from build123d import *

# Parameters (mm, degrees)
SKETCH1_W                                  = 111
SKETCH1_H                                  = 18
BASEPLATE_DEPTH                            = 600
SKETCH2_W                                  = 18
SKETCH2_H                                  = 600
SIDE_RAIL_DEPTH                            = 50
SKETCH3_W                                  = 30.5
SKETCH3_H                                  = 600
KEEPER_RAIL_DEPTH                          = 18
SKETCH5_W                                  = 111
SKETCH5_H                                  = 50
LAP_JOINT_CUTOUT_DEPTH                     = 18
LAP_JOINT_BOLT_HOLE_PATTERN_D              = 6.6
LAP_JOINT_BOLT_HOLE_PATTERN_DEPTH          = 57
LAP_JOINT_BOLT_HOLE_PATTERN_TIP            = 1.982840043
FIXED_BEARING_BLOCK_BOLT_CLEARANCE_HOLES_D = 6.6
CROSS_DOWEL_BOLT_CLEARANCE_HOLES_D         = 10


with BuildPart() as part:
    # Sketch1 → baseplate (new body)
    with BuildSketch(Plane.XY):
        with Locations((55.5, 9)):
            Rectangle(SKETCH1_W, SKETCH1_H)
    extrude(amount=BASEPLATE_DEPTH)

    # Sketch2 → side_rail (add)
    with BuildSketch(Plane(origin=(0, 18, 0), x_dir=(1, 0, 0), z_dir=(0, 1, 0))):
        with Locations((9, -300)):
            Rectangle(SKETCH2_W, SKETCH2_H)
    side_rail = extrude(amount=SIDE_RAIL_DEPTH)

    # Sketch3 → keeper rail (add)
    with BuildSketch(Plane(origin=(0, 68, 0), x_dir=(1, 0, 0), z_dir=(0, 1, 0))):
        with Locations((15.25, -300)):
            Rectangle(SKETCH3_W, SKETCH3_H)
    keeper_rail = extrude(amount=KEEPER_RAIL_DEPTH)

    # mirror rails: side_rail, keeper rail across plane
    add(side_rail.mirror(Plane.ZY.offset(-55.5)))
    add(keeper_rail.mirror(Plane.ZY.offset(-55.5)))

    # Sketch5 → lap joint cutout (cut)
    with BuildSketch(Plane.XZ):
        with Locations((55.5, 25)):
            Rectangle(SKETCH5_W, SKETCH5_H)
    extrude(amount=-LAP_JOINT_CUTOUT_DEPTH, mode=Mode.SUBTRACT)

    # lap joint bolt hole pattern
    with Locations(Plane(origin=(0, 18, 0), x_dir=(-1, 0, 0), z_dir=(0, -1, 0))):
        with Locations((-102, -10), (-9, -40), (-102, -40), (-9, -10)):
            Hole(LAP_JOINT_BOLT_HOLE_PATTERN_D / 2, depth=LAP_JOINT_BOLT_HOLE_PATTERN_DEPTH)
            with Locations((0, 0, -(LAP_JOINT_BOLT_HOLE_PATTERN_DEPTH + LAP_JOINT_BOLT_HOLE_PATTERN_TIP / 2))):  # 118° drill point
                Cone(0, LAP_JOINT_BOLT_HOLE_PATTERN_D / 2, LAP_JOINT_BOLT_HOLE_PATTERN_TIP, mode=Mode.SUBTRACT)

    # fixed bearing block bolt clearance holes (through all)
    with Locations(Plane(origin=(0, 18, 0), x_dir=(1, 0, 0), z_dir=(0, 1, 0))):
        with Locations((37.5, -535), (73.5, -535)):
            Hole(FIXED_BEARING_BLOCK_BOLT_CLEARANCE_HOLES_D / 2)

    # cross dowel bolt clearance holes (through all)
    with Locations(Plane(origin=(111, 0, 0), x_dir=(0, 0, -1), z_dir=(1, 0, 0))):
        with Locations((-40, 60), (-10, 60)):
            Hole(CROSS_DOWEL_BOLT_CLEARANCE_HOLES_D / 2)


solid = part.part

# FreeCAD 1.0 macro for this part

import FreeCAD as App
import Part
import Sketcher

V = App.Vector
Q = App.Units.Quantity


def add_polygon(sketch, points):
    """Adds a closed chain of lines whose ends are joined by coincident constraints."""
    first, n = sketch.GeometryCount, len(points)
    for a, b in zip(points, points[1:] + points[:1]):
        sketch.addGeometry(Part.LineSegment(App.Vector(*a, 0), App.Vector(*b, 0)), False)
    for i in range(n):
        sketch.addConstraint(Sketcher.Constraint("Coincident", first + i, 2, first + (i + 1) % n, 1))

doc = App.newDocument("Part")
params = doc.addObject("Spreadsheet::Sheet", "Params")
for row, (alias, value) in enumerate([
    ("sketch1_width", "111 mm"),
    ("sketch1_height", "18 mm"),
    ("pad1_length", "600 mm"),
    ("sketch2_width", "18 mm"),
    ("sketch2_height", "600 mm"),
    ("pad2_length", "50 mm"),
    ("sketch3_height", "600 mm"),
    ("sketch3_width", "30.5 mm"),
    ("pad3_length", "18 mm"),
    ("sketch4_width", "111 mm"),
    ("sketch4_height", "50 mm"),
    ("pocket1_length", "18 mm"),
    ("sketch5_diameter", "6.6 mm"),
    ("hole_diameter", "6.6 mm"),
    ("hole_depth", "57 mm"),
    ("sketch6_diameter", "6.6 mm"),
    ("hole2_diameter", "6.6 mm"),
    ("sketch7_diameter", "10 mm"),
    ("hole3_diameter", "10 mm"),
], start=1):
    params.set(f"A{row}", alias)
    params.set(f"B{row}", "=" + value)
    params.setAlias(f"B{row}", alias)

body = doc.addObject("PartDesign::Body", "Body")

# Sketch on XY plane
sketch1 = body.newObject("Sketcher::SketchObject", "Sketch")
sketch1.AttachmentSupport = (doc.getObject("XY_Plane"), [""])
sketch1.MapMode = "FlatFace"
add_polygon(sketch1, [(0, 18), (0, 0), (111, 0), (111, 18)])  # lines 0-3
sketch1.addConstraint(Sketcher.Constraint("Vertical", 0))
sketch1.addConstraint(Sketcher.Constraint("Horizontal", 1))
sketch1.addConstraint(Sketcher.Constraint("Vertical", 2))
sketch1.addConstraint(Sketcher.Constraint("Horizontal", 3))
sketch1.addConstraint(Sketcher.Constraint("Coincident", 0, 2, -1, 1))
sketch1.addConstraint(Sketcher.Constraint("DistanceX", 1, 1, 1, 2, Q("111 mm")))
sketch1.addConstraint(Sketcher.Constraint("DistanceY", 0, 2, 0, 1, Q("18 mm")))
sketch1.setExpression("Constraints[9]", "Params.sketch1_width")
sketch1.setExpression("Constraints[10]", "Params.sketch1_height")
pad1 = body.newObject("PartDesign::Pad", "Pad")
pad1.Profile = sketch1
pad1.setExpression("Length", "Params.pad1_length")

# Sketch on XZ plane
sketch2 = body.newObject("Sketcher::SketchObject", "Sketch001")
sketch2.AttachmentSupport = (doc.getObject("XZ_Plane"), [""])
sketch2.MapMode = "FlatFace"
sketch2.AttachmentOffset = App.Placement(V(0, 0, -18), App.Rotation())
add_polygon(sketch2, [(0, 0), (0, 600), (18, 600), (18, 0)])  # lines 0-3
sketch2.addConstraint(Sketcher.Constraint("Vertical", 0))
sketch2.addConstraint(Sketcher.Constraint("Horizontal", 1))
sketch2.addConstraint(Sketcher.Constraint("Vertical", 2))
sketch2.addConstraint(Sketcher.Constraint("Horizontal", 3))
sketch2.addConstraint(Sketcher.Constraint("Coincident", 3, 2, -1, 1))
sketch2.addConstraint(Sketcher.Constraint("DistanceX", 1, 1, 1, 2, Q("18 mm")))
sketch2.addConstraint(Sketcher.Constraint("DistanceY", 0, 1, 0, 2, Q("600 mm")))
sketch2.setExpression("Constraints[9]", "Params.sketch2_width")
sketch2.setExpression("Constraints[10]", "Params.sketch2_height")
pad2 = body.newObject("PartDesign::Pad", "Pad001")
pad2.Profile = sketch2
pad2.setExpression("Length", "Params.pad2_length")
pad2.Reversed = True

# Sketch on XZ plane
sketch3 = body.newObject("Sketcher::SketchObject", "Sketch002")
sketch3.AttachmentSupport = (doc.getObject("XZ_Plane"), [""])
sketch3.MapMode = "FlatFace"
sketch3.AttachmentOffset = App.Placement(V(0, 0, -68), App.Rotation())
add_polygon(sketch3, [(0, 0), (0, 600), (30.5, 600), (30.5, 0)])  # lines 0-3
sketch3.addConstraint(Sketcher.Constraint("Vertical", 0))
sketch3.addConstraint(Sketcher.Constraint("Horizontal", 1))
sketch3.addConstraint(Sketcher.Constraint("Vertical", 2))
sketch3.addConstraint(Sketcher.Constraint("Horizontal", 3))
sketch3.addConstraint(Sketcher.Constraint("Coincident", 3, 2, -1, 1))
sketch3.addConstraint(Sketcher.Constraint("DistanceY", 0, 1, 0, 2, Q("600 mm")))
sketch3.addConstraint(Sketcher.Constraint("DistanceX", 1, 1, 1, 2, Q("30.5 mm")))
sketch3.setExpression("Constraints[9]", "Params.sketch3_height")
sketch3.setExpression("Constraints[10]", "Params.sketch3_width")
pad3 = body.newObject("PartDesign::Pad", "Pad002")
pad3.Profile = sketch3
pad3.setExpression("Length", "Params.pad3_length")
pad3.Reversed = True
doc.recompute()

datumplane = body.newObject("PartDesign::Plane", "DatumPlane")
datumplane.AttachmentSupport = (doc.getObject("YZ_Plane"), [""])
datumplane.MapMode = "FlatFace"
datumplane.AttachmentOffset = App.Placement(V(0, 0, 55.5), App.Rotation())
mirrored = body.newObject("PartDesign::Mirrored", "Mirrored")
mirrored.Originals = [pad2, pad3]
mirrored.MirrorPlane = (datumplane, [""])
body.Tip = mirrored

# Sketch on XZ plane
sketch4 = body.newObject("Sketcher::SketchObject", "Sketch003")
sketch4.AttachmentSupport = (doc.getObject("XZ_Plane"), [""])
sketch4.MapMode = "FlatFace"
add_polygon(sketch4, [(0, 50), (0, 0), (111, 0), (111, 50)])  # lines 0-3
sketch4.addConstraint(Sketcher.Constraint("Vertical", 0))
sketch4.addConstraint(Sketcher.Constraint("Horizontal", 1))
sketch4.addConstraint(Sketcher.Constraint("Vertical", 2))
sketch4.addConstraint(Sketcher.Constraint("Horizontal", 3))
sketch4.addConstraint(Sketcher.Constraint("Coincident", 0, 2, -1, 1))
sketch4.addConstraint(Sketcher.Constraint("DistanceX", 1, 1, 1, 2, Q("111 mm")))
sketch4.addConstraint(Sketcher.Constraint("DistanceY", 0, 2, 0, 1, Q("50 mm")))
sketch4.setExpression("Constraints[9]", "Params.sketch4_width")
sketch4.setExpression("Constraints[10]", "Params.sketch4_height")
pocket1 = body.newObject("PartDesign::Pocket", "Pocket")
pocket1.Profile = sketch4
pocket1.setExpression("Length", "Params.pocket1_length")

# Sketch on XZ plane
sketch5 = body.newObject("Sketcher::SketchObject", "Sketch004")
sketch5.AttachmentSupport = (doc.getObject("XZ_Plane"), [""])
sketch5.MapMode = "FlatFace"
sketch5.AttachmentOffset = App.Placement(V(0, 0, -18), App.Rotation())
sketch5.addGeometry(Part.Circle(V(102, 10, 0), V(0, 0, 1), 3.3), False)
sketch5.addGeometry(Part.Circle(V(9, 40, 0), V(0, 0, 1), 3.3), False)
sketch5.addGeometry(Part.Circle(V(102, 40, 0), V(0, 0, 1), 3.3), False)
sketch5.addGeometry(Part.Circle(V(9, 10, 0), V(0, 0, 1), 3.3), False)
sketch5.addConstraint(Sketcher.Constraint("Equal", 0, 1))
sketch5.addConstraint(Sketcher.Constraint("Equal", 1, 2))
sketch5.addConstraint(Sketcher.Constraint("Equal", 2, 3))
sketch5.addConstraint(Sketcher.Constraint("Horizontal", 1, 3, 2, 3))
sketch5.addConstraint(Sketcher.Constraint("Horizontal", 0, 3, 3, 3))
sketch5.addConstraint(Sketcher.Constraint("Vertical", 0, 3, 2, 3))
sketch5.addConstraint(Sketcher.Constraint("Vertical", 1, 3, 3, 3))
sketch5.addConstraint(Sketcher.Constraint("Diameter", 0, Q("6.6 mm")))
sketch5.addConstraint(Sketcher.Constraint("DistanceX", -1, 1, 0, 3, Q("102 mm")))
sketch5.addConstraint(Sketcher.Constraint("DistanceY", -1, 1, 0, 3, Q("10 mm")))
sketch5.addConstraint(Sketcher.Constraint("DistanceX", -1, 1, 1, 3, Q("9 mm")))
sketch5.addConstraint(Sketcher.Constraint("DistanceY", -1, 1, 1, 3, Q("40 mm")))
sketch5.setExpression("Constraints[7]", "Params.sketch5_diameter")
doc.recompute()
hole = body.newObject("PartDesign::Hole", "Hole")
hole.Profile = sketch5
hole.ThreadType = "None"
hole.setExpression("Diameter", "Params.hole_diameter")
hole.DepthType = "Dimension"
hole.setExpression("Depth", "Params.hole_depth")
hole.DrillPoint = "Angled"
hole.DrillPointAngle = 118

# Sketch on XZ plane
sketch6 = body.newObject("Sketcher::SketchObject", "Sketch005")
sketch6.AttachmentSupport = (doc.getObject("XZ_Plane"), [""])
sketch6.MapMode = "FlatFace"
sketch6.AttachmentOffset = App.Placement(V(0, 0, -18), App.Rotation())
sketch6.addGeometry(Part.Circle(V(37.5, 535, 0), V(0, 0, 1), 3.3), False)
sketch6.addGeometry(Part.Circle(V(73.5, 535, 0), V(0, 0, 1), 3.3), False)
sketch6.addConstraint(Sketcher.Constraint("Equal", 0, 1))
sketch6.addConstraint(Sketcher.Constraint("Horizontal", 0, 3, 1, 3))
sketch6.addConstraint(Sketcher.Constraint("Diameter", 0, Q("6.6 mm")))
sketch6.addConstraint(Sketcher.Constraint("DistanceY", -1, 1, 0, 3, Q("535 mm")))
sketch6.addConstraint(Sketcher.Constraint("DistanceX", 0, 3, 1, 3, Q("36 mm")))
sketch6.addConstraint(Sketcher.Constraint("DistanceX", -1, 1, 0, 3, Q("37.5 mm")))
sketch6.setExpression("Constraints[2]", "Params.sketch6_diameter")
doc.recompute()
hole2 = body.newObject("PartDesign::Hole", "Hole001")
hole2.Profile = sketch6
hole2.ThreadType = "None"
hole2.setExpression("Diameter", "Params.hole2_diameter")
hole2.DepthType = "ThroughAll"
hole2.Reversed = True

# Sketch on YZ plane
sketch7 = body.newObject("Sketcher::SketchObject", "Sketch006")
sketch7.AttachmentSupport = (doc.getObject("YZ_Plane"), [""])
sketch7.MapMode = "FlatFace"
sketch7.AttachmentOffset = App.Placement(V(0, 0, 111), App.Rotation())
sketch7.addGeometry(Part.Circle(V(60, 40, 0), V(0, 0, 1), 5), False)
sketch7.addGeometry(Part.Circle(V(60, 10, 0), V(0, 0, 1), 5), False)
sketch7.addConstraint(Sketcher.Constraint("Equal", 0, 1))
sketch7.addConstraint(Sketcher.Constraint("Vertical", 0, 3, 1, 3))
sketch7.addConstraint(Sketcher.Constraint("Diameter", 0, Q("10 mm")))
sketch7.addConstraint(Sketcher.Constraint("DistanceX", -1, 1, 0, 3, Q("60 mm")))
sketch7.addConstraint(Sketcher.Constraint("DistanceY", -1, 1, 0, 3, Q("40 mm")))
sketch7.addConstraint(Sketcher.Constraint("DistanceY", -1, 1, 1, 3, Q("10 mm")))
sketch7.setExpression("Constraints[2]", "Params.sketch7_diameter")
doc.recompute()
hole3 = body.newObject("PartDesign::Hole", "Hole002")
hole3.Profile = sketch7
hole3.ThreadType = "None"
hole3.setExpression("Diameter", "Params.hole3_diameter")
hole3.DepthType = "ThroughAll"

doc.recompute()
